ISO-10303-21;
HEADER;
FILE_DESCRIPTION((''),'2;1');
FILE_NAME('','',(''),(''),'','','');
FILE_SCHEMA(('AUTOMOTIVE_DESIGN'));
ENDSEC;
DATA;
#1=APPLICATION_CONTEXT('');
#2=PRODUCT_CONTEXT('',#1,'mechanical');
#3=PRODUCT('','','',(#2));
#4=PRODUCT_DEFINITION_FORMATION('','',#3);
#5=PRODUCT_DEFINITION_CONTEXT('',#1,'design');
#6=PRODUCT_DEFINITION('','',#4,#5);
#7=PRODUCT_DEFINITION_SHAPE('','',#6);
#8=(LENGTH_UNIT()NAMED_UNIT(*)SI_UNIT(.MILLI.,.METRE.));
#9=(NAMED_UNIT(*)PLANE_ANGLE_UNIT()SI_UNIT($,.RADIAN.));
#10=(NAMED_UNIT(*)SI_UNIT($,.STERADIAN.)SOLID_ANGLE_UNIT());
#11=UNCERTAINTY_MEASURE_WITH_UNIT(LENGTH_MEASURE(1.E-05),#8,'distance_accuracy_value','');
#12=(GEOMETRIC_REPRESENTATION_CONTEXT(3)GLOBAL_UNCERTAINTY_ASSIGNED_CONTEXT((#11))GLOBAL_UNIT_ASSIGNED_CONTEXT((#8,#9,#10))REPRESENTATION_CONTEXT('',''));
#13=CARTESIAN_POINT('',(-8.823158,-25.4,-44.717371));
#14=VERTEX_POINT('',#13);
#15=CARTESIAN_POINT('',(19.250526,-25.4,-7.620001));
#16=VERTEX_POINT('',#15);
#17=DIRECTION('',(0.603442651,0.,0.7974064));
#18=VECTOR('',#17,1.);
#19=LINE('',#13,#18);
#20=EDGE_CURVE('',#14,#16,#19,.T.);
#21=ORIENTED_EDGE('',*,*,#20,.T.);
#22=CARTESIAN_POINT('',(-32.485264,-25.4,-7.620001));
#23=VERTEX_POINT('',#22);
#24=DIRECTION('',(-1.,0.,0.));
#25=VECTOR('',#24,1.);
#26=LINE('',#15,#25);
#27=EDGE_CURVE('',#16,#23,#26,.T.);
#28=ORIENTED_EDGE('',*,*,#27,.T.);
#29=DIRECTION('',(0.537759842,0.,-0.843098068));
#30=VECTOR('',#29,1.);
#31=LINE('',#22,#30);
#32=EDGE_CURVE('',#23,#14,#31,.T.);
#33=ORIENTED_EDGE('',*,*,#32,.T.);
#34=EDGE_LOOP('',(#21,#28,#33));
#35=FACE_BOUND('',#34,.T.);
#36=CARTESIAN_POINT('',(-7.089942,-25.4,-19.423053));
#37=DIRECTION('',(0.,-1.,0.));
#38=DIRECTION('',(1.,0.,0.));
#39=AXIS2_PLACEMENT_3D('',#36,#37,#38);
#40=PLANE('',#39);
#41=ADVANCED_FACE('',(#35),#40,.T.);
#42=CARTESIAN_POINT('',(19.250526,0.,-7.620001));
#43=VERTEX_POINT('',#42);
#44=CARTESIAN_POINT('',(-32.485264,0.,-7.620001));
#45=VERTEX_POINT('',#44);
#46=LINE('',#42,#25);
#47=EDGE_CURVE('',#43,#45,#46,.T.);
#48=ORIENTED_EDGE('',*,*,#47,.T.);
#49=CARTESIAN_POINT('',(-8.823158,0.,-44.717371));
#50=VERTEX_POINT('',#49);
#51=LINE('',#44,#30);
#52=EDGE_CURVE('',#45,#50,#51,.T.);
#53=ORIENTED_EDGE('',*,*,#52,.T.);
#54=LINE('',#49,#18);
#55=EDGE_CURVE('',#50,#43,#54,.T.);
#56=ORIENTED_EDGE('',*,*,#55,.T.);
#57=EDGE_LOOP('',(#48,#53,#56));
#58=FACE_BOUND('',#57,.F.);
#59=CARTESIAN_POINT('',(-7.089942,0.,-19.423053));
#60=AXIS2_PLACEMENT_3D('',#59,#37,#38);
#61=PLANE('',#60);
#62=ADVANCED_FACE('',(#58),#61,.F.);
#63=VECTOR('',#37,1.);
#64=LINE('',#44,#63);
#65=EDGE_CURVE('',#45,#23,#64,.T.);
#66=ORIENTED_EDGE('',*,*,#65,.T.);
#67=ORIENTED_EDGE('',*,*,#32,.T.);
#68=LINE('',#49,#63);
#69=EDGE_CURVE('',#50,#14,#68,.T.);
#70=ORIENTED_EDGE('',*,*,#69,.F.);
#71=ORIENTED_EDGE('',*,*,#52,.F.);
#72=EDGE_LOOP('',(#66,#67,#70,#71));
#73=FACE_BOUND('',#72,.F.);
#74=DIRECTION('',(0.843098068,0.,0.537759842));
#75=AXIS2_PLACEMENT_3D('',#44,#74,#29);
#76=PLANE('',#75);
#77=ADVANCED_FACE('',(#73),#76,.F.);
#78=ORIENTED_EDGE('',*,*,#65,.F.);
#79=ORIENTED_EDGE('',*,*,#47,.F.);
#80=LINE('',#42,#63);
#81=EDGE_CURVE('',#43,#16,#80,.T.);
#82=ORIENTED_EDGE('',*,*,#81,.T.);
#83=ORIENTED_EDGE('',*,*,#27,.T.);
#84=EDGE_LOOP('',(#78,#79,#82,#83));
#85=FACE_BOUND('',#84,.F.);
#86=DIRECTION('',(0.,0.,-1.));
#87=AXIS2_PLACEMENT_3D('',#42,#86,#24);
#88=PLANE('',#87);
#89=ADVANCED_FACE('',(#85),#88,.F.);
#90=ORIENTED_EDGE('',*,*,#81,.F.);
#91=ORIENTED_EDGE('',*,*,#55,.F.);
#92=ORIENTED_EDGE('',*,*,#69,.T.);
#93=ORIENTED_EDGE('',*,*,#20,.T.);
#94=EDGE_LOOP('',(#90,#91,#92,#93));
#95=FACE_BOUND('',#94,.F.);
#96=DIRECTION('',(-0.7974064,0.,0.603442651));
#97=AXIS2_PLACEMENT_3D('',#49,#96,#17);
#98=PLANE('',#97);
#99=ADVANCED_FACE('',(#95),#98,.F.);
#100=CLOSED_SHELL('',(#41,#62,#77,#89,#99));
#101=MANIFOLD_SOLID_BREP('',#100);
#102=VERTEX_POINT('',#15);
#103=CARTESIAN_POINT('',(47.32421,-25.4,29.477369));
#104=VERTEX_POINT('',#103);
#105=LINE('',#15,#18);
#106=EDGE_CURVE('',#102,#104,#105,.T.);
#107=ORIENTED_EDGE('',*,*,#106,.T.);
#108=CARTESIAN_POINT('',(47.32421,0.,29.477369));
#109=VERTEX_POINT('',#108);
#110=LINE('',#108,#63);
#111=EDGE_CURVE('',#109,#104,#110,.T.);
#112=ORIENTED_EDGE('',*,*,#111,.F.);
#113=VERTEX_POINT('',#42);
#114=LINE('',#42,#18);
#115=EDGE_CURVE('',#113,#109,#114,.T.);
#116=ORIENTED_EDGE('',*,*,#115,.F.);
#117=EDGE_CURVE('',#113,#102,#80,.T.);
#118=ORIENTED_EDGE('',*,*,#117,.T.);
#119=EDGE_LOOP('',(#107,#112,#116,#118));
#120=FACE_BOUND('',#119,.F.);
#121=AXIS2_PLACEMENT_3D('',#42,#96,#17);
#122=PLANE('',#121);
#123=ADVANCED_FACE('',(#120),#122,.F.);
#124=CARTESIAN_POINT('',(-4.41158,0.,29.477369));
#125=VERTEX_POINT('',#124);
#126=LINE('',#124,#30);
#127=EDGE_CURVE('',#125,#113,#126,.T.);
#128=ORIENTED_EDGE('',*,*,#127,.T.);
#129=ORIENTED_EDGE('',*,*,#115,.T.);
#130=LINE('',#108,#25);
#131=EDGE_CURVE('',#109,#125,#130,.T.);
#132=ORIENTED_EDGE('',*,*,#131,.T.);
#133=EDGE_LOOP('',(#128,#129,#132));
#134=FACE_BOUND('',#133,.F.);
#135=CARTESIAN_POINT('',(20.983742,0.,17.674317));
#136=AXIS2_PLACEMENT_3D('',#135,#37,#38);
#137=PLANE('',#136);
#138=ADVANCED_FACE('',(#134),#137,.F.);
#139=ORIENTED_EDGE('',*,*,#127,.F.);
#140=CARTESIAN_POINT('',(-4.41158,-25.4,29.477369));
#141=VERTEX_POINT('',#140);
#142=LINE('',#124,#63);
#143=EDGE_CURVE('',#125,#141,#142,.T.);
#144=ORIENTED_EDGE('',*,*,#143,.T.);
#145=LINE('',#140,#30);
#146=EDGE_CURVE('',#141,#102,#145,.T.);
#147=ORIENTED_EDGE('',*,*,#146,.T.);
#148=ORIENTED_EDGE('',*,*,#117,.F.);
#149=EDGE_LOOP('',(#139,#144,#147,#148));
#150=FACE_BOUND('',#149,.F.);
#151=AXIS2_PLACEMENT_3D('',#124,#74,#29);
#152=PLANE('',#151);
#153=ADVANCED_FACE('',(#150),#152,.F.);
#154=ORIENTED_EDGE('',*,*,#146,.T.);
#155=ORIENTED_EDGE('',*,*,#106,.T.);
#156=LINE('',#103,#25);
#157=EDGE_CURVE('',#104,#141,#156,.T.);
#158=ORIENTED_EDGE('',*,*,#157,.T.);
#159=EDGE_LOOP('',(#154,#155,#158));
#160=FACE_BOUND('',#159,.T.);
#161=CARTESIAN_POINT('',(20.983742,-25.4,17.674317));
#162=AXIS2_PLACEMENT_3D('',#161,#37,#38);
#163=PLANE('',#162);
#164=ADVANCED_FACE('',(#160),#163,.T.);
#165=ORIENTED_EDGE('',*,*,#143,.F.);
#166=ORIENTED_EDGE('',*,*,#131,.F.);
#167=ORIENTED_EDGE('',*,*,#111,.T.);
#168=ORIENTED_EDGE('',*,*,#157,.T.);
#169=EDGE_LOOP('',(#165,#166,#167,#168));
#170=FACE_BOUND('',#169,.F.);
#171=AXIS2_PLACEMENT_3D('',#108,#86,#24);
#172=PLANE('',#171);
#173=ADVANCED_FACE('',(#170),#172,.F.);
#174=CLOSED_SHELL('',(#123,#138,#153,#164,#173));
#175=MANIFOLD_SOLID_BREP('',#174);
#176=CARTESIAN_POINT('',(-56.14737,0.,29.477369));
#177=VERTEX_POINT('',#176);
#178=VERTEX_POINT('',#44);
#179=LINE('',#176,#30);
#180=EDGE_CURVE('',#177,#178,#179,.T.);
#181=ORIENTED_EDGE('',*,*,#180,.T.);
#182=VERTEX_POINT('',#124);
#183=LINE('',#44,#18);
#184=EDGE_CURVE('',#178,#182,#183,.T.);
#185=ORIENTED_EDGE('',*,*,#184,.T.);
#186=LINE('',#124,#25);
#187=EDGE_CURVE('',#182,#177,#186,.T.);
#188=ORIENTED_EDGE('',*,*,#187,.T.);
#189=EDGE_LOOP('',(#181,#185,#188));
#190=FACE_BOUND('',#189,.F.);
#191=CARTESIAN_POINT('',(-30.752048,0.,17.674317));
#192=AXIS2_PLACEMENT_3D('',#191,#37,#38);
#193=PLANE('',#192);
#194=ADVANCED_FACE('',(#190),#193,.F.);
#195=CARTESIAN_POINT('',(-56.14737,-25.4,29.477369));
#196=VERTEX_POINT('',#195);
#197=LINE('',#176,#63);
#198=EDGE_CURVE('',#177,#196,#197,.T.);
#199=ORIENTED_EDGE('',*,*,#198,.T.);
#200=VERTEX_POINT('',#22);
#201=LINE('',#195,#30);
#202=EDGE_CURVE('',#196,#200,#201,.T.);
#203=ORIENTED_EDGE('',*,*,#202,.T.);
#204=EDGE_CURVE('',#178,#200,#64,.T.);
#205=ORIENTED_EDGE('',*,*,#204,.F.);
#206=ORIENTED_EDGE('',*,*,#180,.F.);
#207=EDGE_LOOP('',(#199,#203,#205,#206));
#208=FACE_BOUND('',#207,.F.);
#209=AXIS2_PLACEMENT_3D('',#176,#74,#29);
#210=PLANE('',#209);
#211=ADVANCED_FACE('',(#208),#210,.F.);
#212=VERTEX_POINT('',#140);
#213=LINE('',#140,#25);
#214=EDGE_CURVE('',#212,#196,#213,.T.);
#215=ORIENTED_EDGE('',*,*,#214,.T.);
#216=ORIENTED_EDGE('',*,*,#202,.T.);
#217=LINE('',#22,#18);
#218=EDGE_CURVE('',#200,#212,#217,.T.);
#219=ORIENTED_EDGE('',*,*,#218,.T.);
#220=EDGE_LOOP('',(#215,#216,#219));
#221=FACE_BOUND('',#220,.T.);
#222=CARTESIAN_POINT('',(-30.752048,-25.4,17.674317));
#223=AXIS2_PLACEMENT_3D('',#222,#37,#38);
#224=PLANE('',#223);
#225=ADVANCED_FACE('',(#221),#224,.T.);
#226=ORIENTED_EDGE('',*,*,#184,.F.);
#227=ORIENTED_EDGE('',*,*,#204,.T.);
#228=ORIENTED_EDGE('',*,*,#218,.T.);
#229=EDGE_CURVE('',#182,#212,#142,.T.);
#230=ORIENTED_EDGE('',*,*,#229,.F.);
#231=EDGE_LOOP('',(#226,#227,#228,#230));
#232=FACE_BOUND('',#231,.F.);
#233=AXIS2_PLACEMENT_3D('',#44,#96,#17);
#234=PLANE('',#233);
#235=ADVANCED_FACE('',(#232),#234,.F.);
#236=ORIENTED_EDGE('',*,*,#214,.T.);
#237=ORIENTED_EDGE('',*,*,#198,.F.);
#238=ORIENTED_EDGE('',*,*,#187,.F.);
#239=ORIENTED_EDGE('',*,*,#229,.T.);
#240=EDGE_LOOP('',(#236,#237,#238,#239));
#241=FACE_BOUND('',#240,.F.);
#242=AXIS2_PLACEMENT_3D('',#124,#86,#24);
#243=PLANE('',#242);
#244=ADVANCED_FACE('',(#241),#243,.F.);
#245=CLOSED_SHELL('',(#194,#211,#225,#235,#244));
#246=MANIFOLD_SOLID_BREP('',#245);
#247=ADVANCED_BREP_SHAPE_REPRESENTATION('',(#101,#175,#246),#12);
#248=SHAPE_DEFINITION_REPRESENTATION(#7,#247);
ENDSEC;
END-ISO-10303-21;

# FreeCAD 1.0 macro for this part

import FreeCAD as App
import Part
import Sketcher

V = App.Vector
Q = App.Units.Quantity


def add_polygon(sketch, points):
    """Adds a closed chain of lines whose ends are joined by coincident constraints."""
    first, n = sketch.GeometryCount, len(points)
    for a, b in zip(points, points[1:] + points[:1]):
        sketch.addGeometry(Part.LineSegment(App.Vector(*a, 0), App.Vector(*b, 0)), False)
    for i in range(n):
        sketch.addConstraint(Sketcher.Constraint("Coincident", first + i, 2, first + (i + 1) % n, 1))

doc = App.newDocument("Part")
body = doc.addObject("PartDesign::Body", "Body")
body.AllowCompound = True

sketch1 = body.newObject("Sketcher::SketchObject", "Sketch")
sketch1.AttachmentSupport = (doc.getObject("XZ_Plane"), [""])
sketch1.MapMode = "FlatFace"
add_polygon(sketch1, [(19, -8), (-32, -8), (-9, -45)])
add_polygon(sketch1, [(-4, 29), (-56, 29), (-32, -8)])
add_polygon(sketch1, [(47, 29), (-4, 29), (19, -8)])
sketch1.addConstraint([
    Sketcher.Constraint("Horizontal", 0),
    Sketcher.Constraint("Horizontal", 3),
    Sketcher.Constraint("Horizontal", 6),
    Sketcher.Constraint("Coincident", 4, 2, 0, 2),
    Sketcher.Constraint("Coincident", 6, 2, 5, 2),
    Sketcher.Constraint("Coincident", 7, 2, 2, 2),
    Sketcher.Constraint("Parallel", 1, 4),
    Sketcher.Constraint("Parallel", 2, 5),
    Sketcher.Constraint("Parallel", 4, 7),
    Sketcher.Constraint("Parallel", 5, 8),
    Sketcher.Constraint("DistanceY", 0, 2, -1, 1, Q("0.3 in")),
    Sketcher.Constraint("DistanceX", 0, 2, 0, 1, 51.73579),
    Sketcher.Constraint("Distance", 1, 44.001251),
    Sketcher.Constraint("Distance", 2, 46.522539),
    Sketcher.Constraint("DistanceX", 3, 2, -1, 1, 56.14737),
])
pad1 = body.newObject("PartDesign::Pad", "Pad")
pad1.Profile = sketch1
pad1.Length = Q("1 in")

doc.recompute()
